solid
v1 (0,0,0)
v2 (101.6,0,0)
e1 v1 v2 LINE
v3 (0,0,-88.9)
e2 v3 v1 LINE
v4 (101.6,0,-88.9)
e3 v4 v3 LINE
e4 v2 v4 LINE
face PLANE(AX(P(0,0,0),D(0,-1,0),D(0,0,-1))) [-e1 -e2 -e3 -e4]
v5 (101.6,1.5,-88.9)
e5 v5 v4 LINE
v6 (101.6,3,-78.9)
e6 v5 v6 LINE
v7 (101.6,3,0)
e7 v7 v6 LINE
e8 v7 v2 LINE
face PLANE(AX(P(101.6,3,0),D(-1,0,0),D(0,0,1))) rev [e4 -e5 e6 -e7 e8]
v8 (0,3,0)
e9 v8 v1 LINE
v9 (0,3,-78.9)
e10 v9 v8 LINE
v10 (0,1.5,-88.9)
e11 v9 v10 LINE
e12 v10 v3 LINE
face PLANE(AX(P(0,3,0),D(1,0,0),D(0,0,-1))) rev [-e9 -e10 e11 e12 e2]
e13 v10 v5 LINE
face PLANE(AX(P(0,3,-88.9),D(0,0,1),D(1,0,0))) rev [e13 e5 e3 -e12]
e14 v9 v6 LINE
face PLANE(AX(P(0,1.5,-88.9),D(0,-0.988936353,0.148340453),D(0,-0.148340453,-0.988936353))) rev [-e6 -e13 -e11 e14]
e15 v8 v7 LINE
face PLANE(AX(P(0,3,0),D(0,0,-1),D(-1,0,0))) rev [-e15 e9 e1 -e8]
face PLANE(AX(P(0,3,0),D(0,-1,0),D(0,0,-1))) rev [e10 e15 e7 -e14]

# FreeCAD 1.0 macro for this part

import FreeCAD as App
import Part
import Sketcher
from FreeCAD import Vector

doc = App.newDocument("Part")
body = doc.addObject("PartDesign::Body", "Body")

# Sketch on XZ plane
sketch1 = body.newObject("Sketcher::SketchObject", "Sketch")
sketch1.AttachmentSupport = (doc.getObject("XZ_Plane"), [""])
sketch1.MapMode = "FlatFace"
sketch1.addGeometry(Part.LineSegment(Vector(0, -89, 0), Vector(0, 0, 0)), False)
sketch1.addGeometry(Part.LineSegment(Vector(0, 0, 0), Vector(102, 0, 0)), False)
sketch1.addGeometry(Part.LineSegment(Vector(102, 0, 0), Vector(102, -89, 0)), False)
sketch1.addGeometry(Part.LineSegment(Vector(102, -89, 0), Vector(0, -89, 0)), False)
sketch1.addConstraint(Sketcher.Constraint("Coincident", 0, 2, 1, 1))
sketch1.addConstraint(Sketcher.Constraint("Coincident", 1, 2, 2, 1))
sketch1.addConstraint(Sketcher.Constraint("Coincident", 2, 2, 3, 1))
sketch1.addConstraint(Sketcher.Constraint("Coincident", 3, 2, 0, 1))
sketch1.addConstraint(Sketcher.Constraint("Vertical", 0))
sketch1.addConstraint(Sketcher.Constraint("Horizontal", 1))
sketch1.addConstraint(Sketcher.Constraint("Vertical", 2))
sketch1.addConstraint(Sketcher.Constraint("Horizontal", 3))
sketch1.addConstraint(Sketcher.Constraint("Coincident", 0, 2, -1, 1))
sketch1.addConstraint(Sketcher.Constraint("DistanceX", 1, 1, 1, 2, 101.6))
sketch1.addConstraint(Sketcher.Constraint("DistanceY", 0, 1, 0, 2, 88.9))
pad1 = body.newObject("PartDesign::Pad", "Pad")
pad1.Profile = sketch1
pad1.Length = 3
pad1.Reversed = True

# Sketch on YZ plane
sketch2 = body.newObject("Sketcher::SketchObject", "Sketch001")
sketch2.AttachmentSupport = (doc.getObject("YZ_Plane"), [""])
sketch2.MapMode = "FlatFace"
sketch2.AttachmentOffset = App.Placement(Vector(0, 0, 101.6), App.Rotation())
sketch2.addGeometry(Part.LineSegment(Vector(1.5, -88.9, 0), Vector(5.8, -88.9, 0)), False)
sketch2.addGeometry(Part.LineSegment(Vector(5.8, -88.9, 0), Vector(5.8, -78.9, 0)), False)
sketch2.addGeometry(Part.LineSegment(Vector(5.8, -78.9, 0), Vector(3, -78.9, 0)), False)
sketch2.addGeometry(Part.LineSegment(Vector(3, -78.9, 0), Vector(1.5, -88.9, 0)), False)
sketch2.addConstraint(Sketcher.Constraint("Coincident", 0, 2, 1, 1))
sketch2.addConstraint(Sketcher.Constraint("Coincident", 1, 2, 2, 1))
sketch2.addConstraint(Sketcher.Constraint("Coincident", 2, 2, 3, 1))
sketch2.addConstraint(Sketcher.Constraint("Coincident", 3, 2, 0, 1))
sketch2.addConstraint(Sketcher.Constraint("Horizontal", 0))
sketch2.addConstraint(Sketcher.Constraint("Vertical", 1))
sketch2.addConstraint(Sketcher.Constraint("Horizontal", 2))
sketch2.addConstraint(Sketcher.Constraint("DistanceY", 1, 1, 1, 2, 10.0))
sketch2.addConstraint(Sketcher.Constraint("DistanceX", -1, 1, 2, 2, 3.0))
sketch2.addConstraint(Sketcher.Constraint("DistanceY", 0, 2, -1, 1, 88.9))
sketch2.addConstraint(Sketcher.Constraint("DistanceX", -1, 1, 3, 2, 1.5))
sketch2.addConstraint(Sketcher.Constraint("DistanceX", 0, 1, 0, 2, 4.306098))
pocket1 = body.newObject("PartDesign::Pocket", "Pocket")
pocket1.Profile = sketch2
pocket1.Type = "ThroughAll"
pocket1.Midplane = True

doc.recompute()
